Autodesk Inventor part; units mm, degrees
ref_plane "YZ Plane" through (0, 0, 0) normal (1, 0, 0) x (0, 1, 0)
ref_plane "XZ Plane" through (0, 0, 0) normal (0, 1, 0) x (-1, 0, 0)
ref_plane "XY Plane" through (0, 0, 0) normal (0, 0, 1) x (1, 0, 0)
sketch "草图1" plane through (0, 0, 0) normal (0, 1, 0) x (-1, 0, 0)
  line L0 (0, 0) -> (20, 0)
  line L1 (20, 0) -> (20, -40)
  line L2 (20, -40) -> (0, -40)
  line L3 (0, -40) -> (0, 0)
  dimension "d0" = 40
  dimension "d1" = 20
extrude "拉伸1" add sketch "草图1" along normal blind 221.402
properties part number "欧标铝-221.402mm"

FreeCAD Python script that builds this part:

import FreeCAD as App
import Part
import Sketcher

V = App.Vector
Q = App.Units.Quantity

doc = App.newDocument("Part")
params = doc.addObject("Spreadsheet::Sheet", "Params")
for row, (alias, value) in enumerate([
    ("sketch1_width", "20 mm"),
    ("sketch1_height", "40 mm"),
    ("pad1_length", "221.402 mm"),
], start=1):
    params.set(f"A{row}", alias)
    params.set(f"B{row}", "=" + value)
    params.setAlias(f"B{row}", alias)

body = doc.addObject("PartDesign::Body", "Body")

# Sketch on XZ plane
sketch1 = body.newObject("Sketcher::SketchObject", "Sketch")
sketch1.AttachmentSupport = (doc.getObject("XZ_Plane"), [""])
sketch1.MapMode = "FlatFace"
sketch1.addGeometry(Part.LineSegment(V(-20, 0, 0), V(0, 0, 0)), False)
sketch1.addGeometry(Part.LineSegment(V(0, 0, 0), V(0, -40, 0)), False)
sketch1.addGeometry(Part.LineSegment(V(0, -40, 0), V(-20, -40, 0)), False)
sketch1.addGeometry(Part.LineSegment(V(-20, -40, 0), V(-20, 0, 0)), False)
sketch1.addConstraint(Sketcher.Constraint("Coincident", 0, 2, 1, 1))
sketch1.addConstraint(Sketcher.Constraint("Coincident", 1, 2, 2, 1))
sketch1.addConstraint(Sketcher.Constraint("Coincident", 2, 2, 3, 1))
sketch1.addConstraint(Sketcher.Constraint("Coincident", 3, 2, 0, 1))
sketch1.addConstraint(Sketcher.Constraint("Horizontal", 0))
sketch1.addConstraint(Sketcher.Constraint("Vertical", 1))
sketch1.addConstraint(Sketcher.Constraint("Horizontal", 2))
sketch1.addConstraint(Sketcher.Constraint("Vertical", 3))
sketch1.addConstraint(Sketcher.Constraint("Coincident", 0, 2, -1, 1))
sketch1.addConstraint(Sketcher.Constraint("DistanceX", 0, 1, 0, 2, Q("20 mm")))
sketch1.addConstraint(Sketcher.Constraint("DistanceY", 1, 2, 1, 1, Q("40 mm")))
sketch1.setExpression("Constraints[9]", "Params.sketch1_width")
sketch1.setExpression("Constraints[10]", "Params.sketch1_height")
pad1 = body.newObject("PartDesign::Pad", "Pad")
pad1.Profile = sketch1
pad1.setExpression("Length", "Params.pad1_length")
pad1.Reversed = True

doc.recompute()
